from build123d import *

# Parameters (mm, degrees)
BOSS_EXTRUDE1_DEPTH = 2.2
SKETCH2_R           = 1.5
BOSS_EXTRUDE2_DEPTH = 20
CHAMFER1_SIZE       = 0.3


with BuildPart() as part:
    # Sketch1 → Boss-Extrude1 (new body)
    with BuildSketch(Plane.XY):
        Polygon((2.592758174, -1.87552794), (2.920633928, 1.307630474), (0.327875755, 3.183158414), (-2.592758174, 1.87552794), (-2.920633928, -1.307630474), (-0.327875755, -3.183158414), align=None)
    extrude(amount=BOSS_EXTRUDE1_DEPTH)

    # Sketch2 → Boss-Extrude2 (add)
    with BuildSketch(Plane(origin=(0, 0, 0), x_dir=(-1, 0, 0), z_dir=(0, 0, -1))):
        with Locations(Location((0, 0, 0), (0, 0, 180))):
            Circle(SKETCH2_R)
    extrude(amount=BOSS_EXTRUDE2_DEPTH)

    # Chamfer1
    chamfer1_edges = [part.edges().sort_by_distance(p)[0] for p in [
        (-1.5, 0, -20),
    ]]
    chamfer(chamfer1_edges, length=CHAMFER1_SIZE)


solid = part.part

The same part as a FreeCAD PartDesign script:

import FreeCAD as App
import Part
import Sketcher

V = App.Vector
Q = App.Units.Quantity


def edges_at(feature, points):
    """Names of the edges that pass closest to the given points."""
    edges = feature.Shape.Edges
    near = lambda p: min(range(len(edges)), key=lambda i: edges[i].distToShape(Part.Vertex(*p))[0])
    return sorted({f"Edge{near(p) + 1}" for p in points})


def add_polygon(sketch, points):
    """Adds a closed chain of lines whose ends are joined by coincident constraints."""
    first, n = sketch.GeometryCount, len(points)
    for a, b in zip(points, points[1:] + points[:1]):
        sketch.addGeometry(Part.LineSegment(App.Vector(*a, 0), App.Vector(*b, 0)), False)
    for i in range(n):
        sketch.addConstraint(Sketcher.Constraint("Coincident", first + i, 2, first + (i + 1) % n, 1))

doc = App.newDocument("Part")
body = doc.addObject("PartDesign::Body", "Body")

# Sketch on XY plane
sketch1 = doc.addObject("Sketcher::SketchObject", "Sketch")
body.addObject(sketch1)
sketch1.AttachmentSupport = (doc.XY_Plane, [""])
sketch1.MapMode = "FlatFace"
add_polygon(sketch1, [(2.6, -1.9), (2.9, 1.3), (0.3, 3.2), (-2.6, 1.9), (-2.9, -1.3), (-0.3, -3.2)])  # lines 0-5
sketch1.addConstraint([
    Sketcher.Constraint("Symmetric", 0, 2, 3, 2, -1, 1),
    Sketcher.Constraint("Symmetric", 1, 2, 4, 2, -1, 1),
    Sketcher.Constraint("Symmetric", 2, 2, 5, 2, -1, 1),
    Sketcher.Constraint("Equal", 0, 1),
    Sketcher.Constraint("Equal", 1, 2),
    Sketcher.Constraint("Distance", 0, Q("3.2 mm")),
    Sketcher.Constraint("DistanceY", -1, 1, 0, 2, Q("1.30763 mm")),
    Sketcher.Constraint("DistanceY", -1, 1, 1, 2, Q("3.183158 mm")),
    Sketcher.Constraint("DistanceX", 2, 2, -1, 1, Q("2.592758 mm")),
])
pad1 = doc.addObject("PartDesign::Pad", "Pad")
body.addObject(pad1)
pad1.Profile = sketch1
pad1.Length = 2.2

# Sketch on XY plane
sketch2 = doc.addObject("Sketcher::SketchObject", "Sketch001")
body.addObject(sketch2)
sketch2.AttachmentSupport = (doc.XY_Plane, [""])
sketch2.MapMode = "FlatFace"
sketch2.addGeometry(Part.Circle(V(0, 0, 0), V(0, 0, 1), 1.5), False)
sketch2.addConstraint([
    Sketcher.Constraint("Coincident", 0, 3, -1, 1),
    Sketcher.Constraint("Diameter", 0, Q("3 mm")),
])
pad2 = doc.addObject("PartDesign::Pad", "Pad001")
body.addObject(pad2)
pad2.Profile = sketch2
pad2.Length = 20
pad2.Reversed = True
doc.recompute()

chamfer = doc.addObject("PartDesign::Chamfer", "Chamfer")
body.addObject(chamfer)
chamfer.Base = (pad2, edges_at(pad2, [(-1.5, 0, -20)]))
chamfer.Size = 0.3

doc.recompute()
